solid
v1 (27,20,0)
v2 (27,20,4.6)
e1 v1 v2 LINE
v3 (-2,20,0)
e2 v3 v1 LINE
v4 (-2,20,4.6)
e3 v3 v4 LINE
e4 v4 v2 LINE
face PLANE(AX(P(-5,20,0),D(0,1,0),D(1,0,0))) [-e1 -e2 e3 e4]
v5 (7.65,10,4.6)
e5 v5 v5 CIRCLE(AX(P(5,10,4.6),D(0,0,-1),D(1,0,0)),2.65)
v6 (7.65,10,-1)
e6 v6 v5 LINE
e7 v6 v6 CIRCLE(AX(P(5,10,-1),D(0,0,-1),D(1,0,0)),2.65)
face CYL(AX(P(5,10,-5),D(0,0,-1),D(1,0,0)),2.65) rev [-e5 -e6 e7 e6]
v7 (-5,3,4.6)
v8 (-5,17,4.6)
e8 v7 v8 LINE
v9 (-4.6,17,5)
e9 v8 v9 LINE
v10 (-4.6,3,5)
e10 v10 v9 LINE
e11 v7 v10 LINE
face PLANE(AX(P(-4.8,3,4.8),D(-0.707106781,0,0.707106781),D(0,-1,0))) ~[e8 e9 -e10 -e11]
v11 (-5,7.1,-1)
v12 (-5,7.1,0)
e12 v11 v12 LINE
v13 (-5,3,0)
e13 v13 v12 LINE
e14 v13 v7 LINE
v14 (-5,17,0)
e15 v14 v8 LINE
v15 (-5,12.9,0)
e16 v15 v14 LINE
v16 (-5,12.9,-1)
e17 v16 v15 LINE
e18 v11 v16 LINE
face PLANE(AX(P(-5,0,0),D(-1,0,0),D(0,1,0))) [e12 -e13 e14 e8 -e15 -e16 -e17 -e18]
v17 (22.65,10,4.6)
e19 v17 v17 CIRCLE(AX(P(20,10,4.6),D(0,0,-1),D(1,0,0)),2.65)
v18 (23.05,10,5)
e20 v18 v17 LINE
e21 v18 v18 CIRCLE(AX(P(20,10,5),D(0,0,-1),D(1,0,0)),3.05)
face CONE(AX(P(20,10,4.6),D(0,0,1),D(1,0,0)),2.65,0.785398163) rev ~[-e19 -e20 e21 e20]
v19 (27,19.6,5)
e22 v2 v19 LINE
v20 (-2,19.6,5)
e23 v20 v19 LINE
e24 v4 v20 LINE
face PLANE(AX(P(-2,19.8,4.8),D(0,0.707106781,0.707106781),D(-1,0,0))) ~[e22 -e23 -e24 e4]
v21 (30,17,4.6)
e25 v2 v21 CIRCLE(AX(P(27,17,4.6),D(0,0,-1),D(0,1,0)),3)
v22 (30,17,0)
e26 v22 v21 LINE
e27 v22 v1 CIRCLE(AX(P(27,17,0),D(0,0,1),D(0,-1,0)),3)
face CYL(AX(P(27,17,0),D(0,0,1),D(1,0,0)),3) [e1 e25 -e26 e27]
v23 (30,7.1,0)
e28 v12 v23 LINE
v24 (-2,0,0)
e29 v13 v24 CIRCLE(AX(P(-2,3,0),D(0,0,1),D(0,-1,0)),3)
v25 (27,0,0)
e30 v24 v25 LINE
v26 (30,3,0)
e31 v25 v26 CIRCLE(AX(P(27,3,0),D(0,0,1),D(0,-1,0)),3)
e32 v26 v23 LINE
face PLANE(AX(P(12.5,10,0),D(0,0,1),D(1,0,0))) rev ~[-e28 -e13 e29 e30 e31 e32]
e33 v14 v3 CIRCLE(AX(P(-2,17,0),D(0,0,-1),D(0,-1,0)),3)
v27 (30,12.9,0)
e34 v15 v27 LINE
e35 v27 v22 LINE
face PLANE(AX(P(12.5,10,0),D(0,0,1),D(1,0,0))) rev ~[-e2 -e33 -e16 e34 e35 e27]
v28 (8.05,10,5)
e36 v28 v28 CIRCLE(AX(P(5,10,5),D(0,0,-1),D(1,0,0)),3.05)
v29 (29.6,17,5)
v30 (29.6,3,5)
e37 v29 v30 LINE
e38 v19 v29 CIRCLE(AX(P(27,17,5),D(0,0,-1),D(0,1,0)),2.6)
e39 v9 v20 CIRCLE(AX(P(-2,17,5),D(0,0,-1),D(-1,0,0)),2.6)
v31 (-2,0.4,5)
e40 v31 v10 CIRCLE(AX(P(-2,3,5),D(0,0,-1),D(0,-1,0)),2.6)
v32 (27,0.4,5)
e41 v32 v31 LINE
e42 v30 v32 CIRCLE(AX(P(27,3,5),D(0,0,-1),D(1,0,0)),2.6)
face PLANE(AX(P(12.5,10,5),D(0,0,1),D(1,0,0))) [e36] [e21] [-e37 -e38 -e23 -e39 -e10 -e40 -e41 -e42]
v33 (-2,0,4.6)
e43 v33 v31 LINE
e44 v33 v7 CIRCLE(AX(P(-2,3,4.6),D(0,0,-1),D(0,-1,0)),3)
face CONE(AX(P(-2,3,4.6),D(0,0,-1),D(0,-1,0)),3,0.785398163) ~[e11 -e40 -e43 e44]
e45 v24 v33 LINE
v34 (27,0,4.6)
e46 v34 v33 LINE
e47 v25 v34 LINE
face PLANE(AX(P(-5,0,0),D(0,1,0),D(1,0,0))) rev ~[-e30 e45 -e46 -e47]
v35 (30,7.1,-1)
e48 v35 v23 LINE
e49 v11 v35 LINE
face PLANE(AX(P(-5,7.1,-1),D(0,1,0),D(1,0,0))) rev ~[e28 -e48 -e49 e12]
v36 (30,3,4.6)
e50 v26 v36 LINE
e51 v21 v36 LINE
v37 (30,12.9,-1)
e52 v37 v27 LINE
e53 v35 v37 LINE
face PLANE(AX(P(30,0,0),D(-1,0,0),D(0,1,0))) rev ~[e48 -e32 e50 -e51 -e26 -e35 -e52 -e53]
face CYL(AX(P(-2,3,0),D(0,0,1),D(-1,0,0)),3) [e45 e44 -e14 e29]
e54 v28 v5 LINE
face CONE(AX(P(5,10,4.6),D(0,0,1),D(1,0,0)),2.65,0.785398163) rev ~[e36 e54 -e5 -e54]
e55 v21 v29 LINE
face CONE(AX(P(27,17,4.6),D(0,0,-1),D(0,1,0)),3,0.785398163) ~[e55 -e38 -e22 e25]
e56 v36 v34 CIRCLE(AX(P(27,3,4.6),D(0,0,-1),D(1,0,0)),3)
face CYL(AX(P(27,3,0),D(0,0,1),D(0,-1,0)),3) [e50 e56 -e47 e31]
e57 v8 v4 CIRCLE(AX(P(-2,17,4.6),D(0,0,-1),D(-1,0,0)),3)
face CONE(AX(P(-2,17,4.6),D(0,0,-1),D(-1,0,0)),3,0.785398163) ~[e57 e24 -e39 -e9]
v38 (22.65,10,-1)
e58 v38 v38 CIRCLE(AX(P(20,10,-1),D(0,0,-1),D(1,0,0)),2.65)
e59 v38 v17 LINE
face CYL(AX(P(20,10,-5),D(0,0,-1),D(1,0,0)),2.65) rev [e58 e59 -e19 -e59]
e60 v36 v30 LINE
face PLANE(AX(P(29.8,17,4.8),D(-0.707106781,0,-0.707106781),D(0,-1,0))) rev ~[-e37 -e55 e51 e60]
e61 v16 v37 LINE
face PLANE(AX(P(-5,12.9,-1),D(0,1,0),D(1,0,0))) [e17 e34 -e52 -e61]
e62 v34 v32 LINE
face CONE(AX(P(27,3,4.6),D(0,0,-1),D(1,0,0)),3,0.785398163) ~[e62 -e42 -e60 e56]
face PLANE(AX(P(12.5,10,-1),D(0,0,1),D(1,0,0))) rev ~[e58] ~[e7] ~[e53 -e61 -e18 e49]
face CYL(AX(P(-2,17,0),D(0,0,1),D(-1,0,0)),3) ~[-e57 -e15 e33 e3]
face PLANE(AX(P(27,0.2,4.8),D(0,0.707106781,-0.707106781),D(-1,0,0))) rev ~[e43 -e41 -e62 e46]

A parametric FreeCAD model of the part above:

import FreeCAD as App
import Part
import Sketcher
from FreeCAD import Vector
Q = App.Units.Quantity


def edges_at(feature, points):
    """Names of the edges that pass closest to the given points."""
    edges = feature.Shape.Edges
    near = lambda p: min(range(len(edges)), key=lambda i: edges[i].distToShape(Part.Vertex(*p))[0])
    return sorted({f"Edge{near(p) + 1}" for p in points})

doc = App.newDocument("Part")
body = doc.addObject("PartDesign::Body", "Body")

# Sketch on XY plane
sketch1 = body.newObject("Sketcher::SketchObject", "Sketch")
sketch1.AttachmentSupport = (doc.getObject("XY_Plane"), [""])
sketch1.MapMode = "FlatFace"
sketch1.AttachmentOffset = App.Placement(Vector(0, 0, -5), App.Rotation())
sketch1.addGeometry(Part.Circle(Vector(20, 10, 0), Vector(0, 0, 1), 2.65), False)
sketch1.addConstraint([
    Sketcher.Constraint("Diameter", 0, Q("5.3 mm")),
    Sketcher.Constraint("DistanceX", -1, 1, 0, 3, Q("20 mm")),
    Sketcher.Constraint("DistanceY", -1, 1, 0, 3, Q("10 mm")),
])
pad1 = body.newObject("PartDesign::Pad", "Pad")
pad1.Profile = sketch1
pad1.Length = 14
body2 = doc.addObject("PartDesign::Body", "Body001")
body2.AllowCompound = True

# Sketch on XY plane
sketch2 = body2.newObject("Sketcher::SketchObject", "Sketch001")
sketch2.AttachmentSupport = (doc.getObject("XY_Plane001"), [""])
sketch2.MapMode = "FlatFace"
sketch2.AttachmentOffset = App.Placement(Vector(0, 0, -5), App.Rotation())
sketch2.addGeometry(Part.Circle(Vector(5, 10, 0), Vector(0, 0, 1), 2.65), False)
sketch2.addConstraint([
    Sketcher.Constraint("Diameter", 0, Q("5.3 mm")),
    Sketcher.Constraint("DistanceX", -1, 1, 0, 3, Q("5 mm")),
    Sketcher.Constraint("DistanceY", -1, 1, 0, 3, Q("10 mm")),
])
pad2 = body2.newObject("PartDesign::Pad", "Pad001")
pad2.Profile = sketch2
pad2.Length = 14
doc.recompute()

boolean = body2.newObject("PartDesign::Boolean", "Boolean")
boolean.Type = "Fuse"
boolean.addObjects([body])
body3 = doc.addObject("PartDesign::Body", "Body002")

# Sketch on XY plane
sketch3 = body3.newObject("Sketcher::SketchObject", "Sketch002")
sketch3.AttachmentSupport = (doc.getObject("XY_Plane002"), [""])
sketch3.MapMode = "FlatFace"
sketch3.addGeometry([
    Part.LineSegment(Vector(-5, 20, 0), Vector(-5, 0, 0)),
    Part.LineSegment(Vector(-5, 0, 0), Vector(30, 0, 0)),
    Part.LineSegment(Vector(30, 0, 0), Vector(30, 20, 0)),
    Part.LineSegment(Vector(30, 20, 0), Vector(-5, 20, 0)),
], False)
sketch3.addConstraint([
    Sketcher.Constraint("Coincident", 0, 2, 1, 1),
    Sketcher.Constraint("Coincident", 1, 2, 2, 1),
    Sketcher.Constraint("Coincident", 2, 2, 3, 1),
    Sketcher.Constraint("Coincident", 3, 2, 0, 1),
    Sketcher.Constraint("Vertical", 0),
    Sketcher.Constraint("Horizontal", 1),
    Sketcher.Constraint("Vertical", 2),
    Sketcher.Constraint("Horizontal", 3),
    Sketcher.Constraint("PointOnObject", 0, 2, -1),
    Sketcher.Constraint("DistanceX", 1, 1, 1, 2, Q("35 mm")),
    Sketcher.Constraint("DistanceY", 0, 2, 0, 1, Q("20 mm")),
    Sketcher.Constraint("DistanceX", 0, 2, -1, 1, Q("5 mm")),
])
pad3 = body3.newObject("PartDesign::Pad", "Pad002")
pad3.Profile = sketch3
pad3.Length = 5
doc.recompute()

fillet = body3.newObject("PartDesign::Fillet", "Fillet")
fillet.Base = (pad3, edges_at(pad3, [
    (-5, 0, 2.5),
    (-5, 20, 2.5),
    (30, 0, 2.5),
    (30, 20, 2.5),
]))
fillet.Radius = 3
body4 = doc.addObject("PartDesign::Body", "Body003")

# Sketch on XY plane
sketch4 = body4.newObject("Sketcher::SketchObject", "Sketch003")
sketch4.AttachmentSupport = (doc.getObject("XY_Plane003"), [""])
sketch4.MapMode = "FlatFace"
sketch4.AttachmentOffset = App.Placement(Vector(0, 0, -1), App.Rotation())
sketch4.addGeometry([
    Part.LineSegment(Vector(-5, 12.9, 0), Vector(-5, 7.1, 0)),
    Part.LineSegment(Vector(-5, 7.1, 0), Vector(30, 7.1, 0)),
    Part.LineSegment(Vector(30, 7.1, 0), Vector(30, 12.9, 0)),
    Part.LineSegment(Vector(30, 12.9, 0), Vector(-5, 12.9, 0)),
], False)
sketch4.addConstraint([
    Sketcher.Constraint("Coincident", 0, 2, 1, 1),
    Sketcher.Constraint("Coincident", 1, 2, 2, 1),
    Sketcher.Constraint("Coincident", 2, 2, 3, 1),
    Sketcher.Constraint("Coincident", 3, 2, 0, 1),
    Sketcher.Constraint("Vertical", 0),
    Sketcher.Constraint("Horizontal", 1),
    Sketcher.Constraint("Vertical", 2),
    Sketcher.Constraint("Horizontal", 3),
    Sketcher.Constraint("DistanceX", 1, 1, 1, 2, Q("35 mm")),
    Sketcher.Constraint("DistanceY", 0, 2, 0, 1, Q("5.8 mm")),
    Sketcher.Constraint("DistanceX", 0, 2, -1, 1, Q("5 mm")),
    Sketcher.Constraint("DistanceY", -1, 1, 0, 2, Q("7.1 mm")),
])
pad4 = body4.newObject("PartDesign::Pad", "Pad003")
pad4.Profile = sketch4
pad4.Length = 2
doc.recompute()

boolean2 = body4.newObject("PartDesign::Boolean", "Boolean001")
boolean2.Type = "Fuse"
boolean2.addObjects([body3])
doc.recompute()

boolean3 = body4.newObject("PartDesign::Boolean", "Boolean002")
boolean3.Type = "Cut"
boolean3.addObjects([body2])
doc.recompute()

chamfer = body4.newObject("PartDesign::Chamfer", "Chamfer")
chamfer.Base = (boolean3, edges_at(boolean3, [
    (-5, 10, 5),
    (2.35, 10, 5),
    (17.35, 10, 5),
    (30, 10, 5),
    (29.121, 0.879, 5),
    (12.5, 0, 5),
    (-4.121, 0.879, 5),
    (-4.121, 19.121, 5),
    (12.5, 20, 5),
    (29.121, 19.121, 5),
]))
chamfer.Size = 0.4

doc.recompute()
